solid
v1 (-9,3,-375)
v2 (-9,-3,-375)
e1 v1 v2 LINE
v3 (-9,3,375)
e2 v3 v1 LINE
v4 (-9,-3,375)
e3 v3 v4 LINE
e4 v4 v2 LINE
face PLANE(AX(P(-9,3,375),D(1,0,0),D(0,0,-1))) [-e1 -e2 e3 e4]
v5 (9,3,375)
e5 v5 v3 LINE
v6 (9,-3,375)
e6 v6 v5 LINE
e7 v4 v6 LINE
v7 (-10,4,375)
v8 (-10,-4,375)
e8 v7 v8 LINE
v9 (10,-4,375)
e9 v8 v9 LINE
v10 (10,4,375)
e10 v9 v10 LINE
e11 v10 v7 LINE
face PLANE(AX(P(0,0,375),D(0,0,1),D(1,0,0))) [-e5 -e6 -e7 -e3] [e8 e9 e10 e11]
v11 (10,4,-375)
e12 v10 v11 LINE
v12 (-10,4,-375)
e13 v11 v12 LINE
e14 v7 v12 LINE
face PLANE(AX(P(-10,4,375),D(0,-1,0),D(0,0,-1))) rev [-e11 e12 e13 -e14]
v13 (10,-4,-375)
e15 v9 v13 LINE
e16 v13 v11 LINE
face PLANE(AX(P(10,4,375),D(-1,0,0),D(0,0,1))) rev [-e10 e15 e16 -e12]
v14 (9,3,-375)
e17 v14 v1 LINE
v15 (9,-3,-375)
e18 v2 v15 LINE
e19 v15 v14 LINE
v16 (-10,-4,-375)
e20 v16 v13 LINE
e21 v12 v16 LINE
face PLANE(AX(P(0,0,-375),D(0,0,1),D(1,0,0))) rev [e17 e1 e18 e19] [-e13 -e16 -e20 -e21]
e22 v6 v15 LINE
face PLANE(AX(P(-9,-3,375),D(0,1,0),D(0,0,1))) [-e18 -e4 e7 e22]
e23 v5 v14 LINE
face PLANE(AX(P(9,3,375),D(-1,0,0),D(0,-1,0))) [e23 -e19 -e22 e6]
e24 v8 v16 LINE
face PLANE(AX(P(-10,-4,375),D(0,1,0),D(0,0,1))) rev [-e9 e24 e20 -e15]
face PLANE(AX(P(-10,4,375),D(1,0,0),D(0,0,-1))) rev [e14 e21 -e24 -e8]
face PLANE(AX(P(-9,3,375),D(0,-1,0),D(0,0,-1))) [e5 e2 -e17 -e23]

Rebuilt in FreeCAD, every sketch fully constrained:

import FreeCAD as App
import Part
import Sketcher
Q = App.Units.Quantity

doc = App.newDocument("Part")
params = doc.addObject("Spreadsheet::Sheet", "Params")
for row, (alias, value) in enumerate([
    ("sketch1_width", "20 mm"),
    ("sketch1_width2", "18 mm"),
    ("sketch1_height", "8 mm"),
    ("sketch1_height2", "6 mm"),
    ("pad1_length", "750 mm"),
], start=1):
    params.set(f"A{row}", alias)
    params.set(f"B{row}", "=" + value)
    params.setAlias(f"B{row}", alias)

body = doc.addObject("PartDesign::Body", "Body")

# Sketch on XY plane
sketch1 = body.newObject("Sketcher::SketchObject", "Sketch")
sketch1.AttachmentSupport = (doc.getObject("XY_Plane"), [""])
sketch1.MapMode = "FlatFace"
sketch1.addGeometry(Part.LineSegment(App.Vector(-10, 4, 0), App.Vector(-10, -4, 0)), False)
sketch1.addGeometry(Part.LineSegment(App.Vector(-10, -4, 0), App.Vector(10, -4, 0)), False)
sketch1.addGeometry(Part.LineSegment(App.Vector(10, -4, 0), App.Vector(10, 4, 0)), False)
sketch1.addGeometry(Part.LineSegment(App.Vector(10, 4, 0), App.Vector(-10, 4, 0)), False)
sketch1.addGeometry(Part.LineSegment(App.Vector(9, -3, 0), App.Vector(-9, -3, 0)), False)
sketch1.addGeometry(Part.LineSegment(App.Vector(-9, -3, 0), App.Vector(-9, 3, 0)), False)
sketch1.addGeometry(Part.LineSegment(App.Vector(-9, 3, 0), App.Vector(9, 3, 0)), False)
sketch1.addGeometry(Part.LineSegment(App.Vector(9, 3, 0), App.Vector(9, -3, 0)), False)
sketch1.addConstraint(Sketcher.Constraint("Coincident", 0, 2, 1, 1))
sketch1.addConstraint(Sketcher.Constraint("Coincident", 1, 2, 2, 1))
sketch1.addConstraint(Sketcher.Constraint("Coincident", 2, 2, 3, 1))
sketch1.addConstraint(Sketcher.Constraint("Coincident", 3, 2, 0, 1))
sketch1.addConstraint(Sketcher.Constraint("Coincident", 4, 2, 5, 1))
sketch1.addConstraint(Sketcher.Constraint("Coincident", 5, 2, 6, 1))
sketch1.addConstraint(Sketcher.Constraint("Coincident", 6, 2, 7, 1))
sketch1.addConstraint(Sketcher.Constraint("Coincident", 7, 2, 4, 1))
sketch1.addConstraint(Sketcher.Constraint("Vertical", 0))
sketch1.addConstraint(Sketcher.Constraint("Horizontal", 1))
sketch1.addConstraint(Sketcher.Constraint("Vertical", 2))
sketch1.addConstraint(Sketcher.Constraint("Horizontal", 3))
sketch1.addConstraint(Sketcher.Constraint("Horizontal", 4))
sketch1.addConstraint(Sketcher.Constraint("Vertical", 5))
sketch1.addConstraint(Sketcher.Constraint("Horizontal", 6))
sketch1.addConstraint(Sketcher.Constraint("Vertical", 7))
sketch1.addConstraint(Sketcher.Constraint("Symmetric", 0, 2, 2, 2, -1, 1))
sketch1.addConstraint(Sketcher.Constraint("Symmetric", 4, 2, 6, 2, -1, 1))
sketch1.addConstraint(Sketcher.Constraint("DistanceX", 1, 1, 1, 2, Q("20 mm")))
sketch1.addConstraint(Sketcher.Constraint("DistanceX", 4, 2, 4, 1, Q("18 mm")))
sketch1.addConstraint(Sketcher.Constraint("DistanceY", 0, 2, 0, 1, Q("8 mm")))
sketch1.addConstraint(Sketcher.Constraint("DistanceY", 5, 1, 5, 2, Q("6 mm")))
sketch1.setExpression("Constraints[18]", "Params.sketch1_width")
sketch1.setExpression("Constraints[19]", "Params.sketch1_width2")
sketch1.setExpression("Constraints[20]", "Params.sketch1_height")
sketch1.setExpression("Constraints[21]", "Params.sketch1_height2")
pad1 = body.newObject("PartDesign::Pad", "Pad")
pad1.Profile = sketch1
pad1.setExpression("Length", "Params.pad1_length")
pad1.Midplane = True

doc.recompute()
